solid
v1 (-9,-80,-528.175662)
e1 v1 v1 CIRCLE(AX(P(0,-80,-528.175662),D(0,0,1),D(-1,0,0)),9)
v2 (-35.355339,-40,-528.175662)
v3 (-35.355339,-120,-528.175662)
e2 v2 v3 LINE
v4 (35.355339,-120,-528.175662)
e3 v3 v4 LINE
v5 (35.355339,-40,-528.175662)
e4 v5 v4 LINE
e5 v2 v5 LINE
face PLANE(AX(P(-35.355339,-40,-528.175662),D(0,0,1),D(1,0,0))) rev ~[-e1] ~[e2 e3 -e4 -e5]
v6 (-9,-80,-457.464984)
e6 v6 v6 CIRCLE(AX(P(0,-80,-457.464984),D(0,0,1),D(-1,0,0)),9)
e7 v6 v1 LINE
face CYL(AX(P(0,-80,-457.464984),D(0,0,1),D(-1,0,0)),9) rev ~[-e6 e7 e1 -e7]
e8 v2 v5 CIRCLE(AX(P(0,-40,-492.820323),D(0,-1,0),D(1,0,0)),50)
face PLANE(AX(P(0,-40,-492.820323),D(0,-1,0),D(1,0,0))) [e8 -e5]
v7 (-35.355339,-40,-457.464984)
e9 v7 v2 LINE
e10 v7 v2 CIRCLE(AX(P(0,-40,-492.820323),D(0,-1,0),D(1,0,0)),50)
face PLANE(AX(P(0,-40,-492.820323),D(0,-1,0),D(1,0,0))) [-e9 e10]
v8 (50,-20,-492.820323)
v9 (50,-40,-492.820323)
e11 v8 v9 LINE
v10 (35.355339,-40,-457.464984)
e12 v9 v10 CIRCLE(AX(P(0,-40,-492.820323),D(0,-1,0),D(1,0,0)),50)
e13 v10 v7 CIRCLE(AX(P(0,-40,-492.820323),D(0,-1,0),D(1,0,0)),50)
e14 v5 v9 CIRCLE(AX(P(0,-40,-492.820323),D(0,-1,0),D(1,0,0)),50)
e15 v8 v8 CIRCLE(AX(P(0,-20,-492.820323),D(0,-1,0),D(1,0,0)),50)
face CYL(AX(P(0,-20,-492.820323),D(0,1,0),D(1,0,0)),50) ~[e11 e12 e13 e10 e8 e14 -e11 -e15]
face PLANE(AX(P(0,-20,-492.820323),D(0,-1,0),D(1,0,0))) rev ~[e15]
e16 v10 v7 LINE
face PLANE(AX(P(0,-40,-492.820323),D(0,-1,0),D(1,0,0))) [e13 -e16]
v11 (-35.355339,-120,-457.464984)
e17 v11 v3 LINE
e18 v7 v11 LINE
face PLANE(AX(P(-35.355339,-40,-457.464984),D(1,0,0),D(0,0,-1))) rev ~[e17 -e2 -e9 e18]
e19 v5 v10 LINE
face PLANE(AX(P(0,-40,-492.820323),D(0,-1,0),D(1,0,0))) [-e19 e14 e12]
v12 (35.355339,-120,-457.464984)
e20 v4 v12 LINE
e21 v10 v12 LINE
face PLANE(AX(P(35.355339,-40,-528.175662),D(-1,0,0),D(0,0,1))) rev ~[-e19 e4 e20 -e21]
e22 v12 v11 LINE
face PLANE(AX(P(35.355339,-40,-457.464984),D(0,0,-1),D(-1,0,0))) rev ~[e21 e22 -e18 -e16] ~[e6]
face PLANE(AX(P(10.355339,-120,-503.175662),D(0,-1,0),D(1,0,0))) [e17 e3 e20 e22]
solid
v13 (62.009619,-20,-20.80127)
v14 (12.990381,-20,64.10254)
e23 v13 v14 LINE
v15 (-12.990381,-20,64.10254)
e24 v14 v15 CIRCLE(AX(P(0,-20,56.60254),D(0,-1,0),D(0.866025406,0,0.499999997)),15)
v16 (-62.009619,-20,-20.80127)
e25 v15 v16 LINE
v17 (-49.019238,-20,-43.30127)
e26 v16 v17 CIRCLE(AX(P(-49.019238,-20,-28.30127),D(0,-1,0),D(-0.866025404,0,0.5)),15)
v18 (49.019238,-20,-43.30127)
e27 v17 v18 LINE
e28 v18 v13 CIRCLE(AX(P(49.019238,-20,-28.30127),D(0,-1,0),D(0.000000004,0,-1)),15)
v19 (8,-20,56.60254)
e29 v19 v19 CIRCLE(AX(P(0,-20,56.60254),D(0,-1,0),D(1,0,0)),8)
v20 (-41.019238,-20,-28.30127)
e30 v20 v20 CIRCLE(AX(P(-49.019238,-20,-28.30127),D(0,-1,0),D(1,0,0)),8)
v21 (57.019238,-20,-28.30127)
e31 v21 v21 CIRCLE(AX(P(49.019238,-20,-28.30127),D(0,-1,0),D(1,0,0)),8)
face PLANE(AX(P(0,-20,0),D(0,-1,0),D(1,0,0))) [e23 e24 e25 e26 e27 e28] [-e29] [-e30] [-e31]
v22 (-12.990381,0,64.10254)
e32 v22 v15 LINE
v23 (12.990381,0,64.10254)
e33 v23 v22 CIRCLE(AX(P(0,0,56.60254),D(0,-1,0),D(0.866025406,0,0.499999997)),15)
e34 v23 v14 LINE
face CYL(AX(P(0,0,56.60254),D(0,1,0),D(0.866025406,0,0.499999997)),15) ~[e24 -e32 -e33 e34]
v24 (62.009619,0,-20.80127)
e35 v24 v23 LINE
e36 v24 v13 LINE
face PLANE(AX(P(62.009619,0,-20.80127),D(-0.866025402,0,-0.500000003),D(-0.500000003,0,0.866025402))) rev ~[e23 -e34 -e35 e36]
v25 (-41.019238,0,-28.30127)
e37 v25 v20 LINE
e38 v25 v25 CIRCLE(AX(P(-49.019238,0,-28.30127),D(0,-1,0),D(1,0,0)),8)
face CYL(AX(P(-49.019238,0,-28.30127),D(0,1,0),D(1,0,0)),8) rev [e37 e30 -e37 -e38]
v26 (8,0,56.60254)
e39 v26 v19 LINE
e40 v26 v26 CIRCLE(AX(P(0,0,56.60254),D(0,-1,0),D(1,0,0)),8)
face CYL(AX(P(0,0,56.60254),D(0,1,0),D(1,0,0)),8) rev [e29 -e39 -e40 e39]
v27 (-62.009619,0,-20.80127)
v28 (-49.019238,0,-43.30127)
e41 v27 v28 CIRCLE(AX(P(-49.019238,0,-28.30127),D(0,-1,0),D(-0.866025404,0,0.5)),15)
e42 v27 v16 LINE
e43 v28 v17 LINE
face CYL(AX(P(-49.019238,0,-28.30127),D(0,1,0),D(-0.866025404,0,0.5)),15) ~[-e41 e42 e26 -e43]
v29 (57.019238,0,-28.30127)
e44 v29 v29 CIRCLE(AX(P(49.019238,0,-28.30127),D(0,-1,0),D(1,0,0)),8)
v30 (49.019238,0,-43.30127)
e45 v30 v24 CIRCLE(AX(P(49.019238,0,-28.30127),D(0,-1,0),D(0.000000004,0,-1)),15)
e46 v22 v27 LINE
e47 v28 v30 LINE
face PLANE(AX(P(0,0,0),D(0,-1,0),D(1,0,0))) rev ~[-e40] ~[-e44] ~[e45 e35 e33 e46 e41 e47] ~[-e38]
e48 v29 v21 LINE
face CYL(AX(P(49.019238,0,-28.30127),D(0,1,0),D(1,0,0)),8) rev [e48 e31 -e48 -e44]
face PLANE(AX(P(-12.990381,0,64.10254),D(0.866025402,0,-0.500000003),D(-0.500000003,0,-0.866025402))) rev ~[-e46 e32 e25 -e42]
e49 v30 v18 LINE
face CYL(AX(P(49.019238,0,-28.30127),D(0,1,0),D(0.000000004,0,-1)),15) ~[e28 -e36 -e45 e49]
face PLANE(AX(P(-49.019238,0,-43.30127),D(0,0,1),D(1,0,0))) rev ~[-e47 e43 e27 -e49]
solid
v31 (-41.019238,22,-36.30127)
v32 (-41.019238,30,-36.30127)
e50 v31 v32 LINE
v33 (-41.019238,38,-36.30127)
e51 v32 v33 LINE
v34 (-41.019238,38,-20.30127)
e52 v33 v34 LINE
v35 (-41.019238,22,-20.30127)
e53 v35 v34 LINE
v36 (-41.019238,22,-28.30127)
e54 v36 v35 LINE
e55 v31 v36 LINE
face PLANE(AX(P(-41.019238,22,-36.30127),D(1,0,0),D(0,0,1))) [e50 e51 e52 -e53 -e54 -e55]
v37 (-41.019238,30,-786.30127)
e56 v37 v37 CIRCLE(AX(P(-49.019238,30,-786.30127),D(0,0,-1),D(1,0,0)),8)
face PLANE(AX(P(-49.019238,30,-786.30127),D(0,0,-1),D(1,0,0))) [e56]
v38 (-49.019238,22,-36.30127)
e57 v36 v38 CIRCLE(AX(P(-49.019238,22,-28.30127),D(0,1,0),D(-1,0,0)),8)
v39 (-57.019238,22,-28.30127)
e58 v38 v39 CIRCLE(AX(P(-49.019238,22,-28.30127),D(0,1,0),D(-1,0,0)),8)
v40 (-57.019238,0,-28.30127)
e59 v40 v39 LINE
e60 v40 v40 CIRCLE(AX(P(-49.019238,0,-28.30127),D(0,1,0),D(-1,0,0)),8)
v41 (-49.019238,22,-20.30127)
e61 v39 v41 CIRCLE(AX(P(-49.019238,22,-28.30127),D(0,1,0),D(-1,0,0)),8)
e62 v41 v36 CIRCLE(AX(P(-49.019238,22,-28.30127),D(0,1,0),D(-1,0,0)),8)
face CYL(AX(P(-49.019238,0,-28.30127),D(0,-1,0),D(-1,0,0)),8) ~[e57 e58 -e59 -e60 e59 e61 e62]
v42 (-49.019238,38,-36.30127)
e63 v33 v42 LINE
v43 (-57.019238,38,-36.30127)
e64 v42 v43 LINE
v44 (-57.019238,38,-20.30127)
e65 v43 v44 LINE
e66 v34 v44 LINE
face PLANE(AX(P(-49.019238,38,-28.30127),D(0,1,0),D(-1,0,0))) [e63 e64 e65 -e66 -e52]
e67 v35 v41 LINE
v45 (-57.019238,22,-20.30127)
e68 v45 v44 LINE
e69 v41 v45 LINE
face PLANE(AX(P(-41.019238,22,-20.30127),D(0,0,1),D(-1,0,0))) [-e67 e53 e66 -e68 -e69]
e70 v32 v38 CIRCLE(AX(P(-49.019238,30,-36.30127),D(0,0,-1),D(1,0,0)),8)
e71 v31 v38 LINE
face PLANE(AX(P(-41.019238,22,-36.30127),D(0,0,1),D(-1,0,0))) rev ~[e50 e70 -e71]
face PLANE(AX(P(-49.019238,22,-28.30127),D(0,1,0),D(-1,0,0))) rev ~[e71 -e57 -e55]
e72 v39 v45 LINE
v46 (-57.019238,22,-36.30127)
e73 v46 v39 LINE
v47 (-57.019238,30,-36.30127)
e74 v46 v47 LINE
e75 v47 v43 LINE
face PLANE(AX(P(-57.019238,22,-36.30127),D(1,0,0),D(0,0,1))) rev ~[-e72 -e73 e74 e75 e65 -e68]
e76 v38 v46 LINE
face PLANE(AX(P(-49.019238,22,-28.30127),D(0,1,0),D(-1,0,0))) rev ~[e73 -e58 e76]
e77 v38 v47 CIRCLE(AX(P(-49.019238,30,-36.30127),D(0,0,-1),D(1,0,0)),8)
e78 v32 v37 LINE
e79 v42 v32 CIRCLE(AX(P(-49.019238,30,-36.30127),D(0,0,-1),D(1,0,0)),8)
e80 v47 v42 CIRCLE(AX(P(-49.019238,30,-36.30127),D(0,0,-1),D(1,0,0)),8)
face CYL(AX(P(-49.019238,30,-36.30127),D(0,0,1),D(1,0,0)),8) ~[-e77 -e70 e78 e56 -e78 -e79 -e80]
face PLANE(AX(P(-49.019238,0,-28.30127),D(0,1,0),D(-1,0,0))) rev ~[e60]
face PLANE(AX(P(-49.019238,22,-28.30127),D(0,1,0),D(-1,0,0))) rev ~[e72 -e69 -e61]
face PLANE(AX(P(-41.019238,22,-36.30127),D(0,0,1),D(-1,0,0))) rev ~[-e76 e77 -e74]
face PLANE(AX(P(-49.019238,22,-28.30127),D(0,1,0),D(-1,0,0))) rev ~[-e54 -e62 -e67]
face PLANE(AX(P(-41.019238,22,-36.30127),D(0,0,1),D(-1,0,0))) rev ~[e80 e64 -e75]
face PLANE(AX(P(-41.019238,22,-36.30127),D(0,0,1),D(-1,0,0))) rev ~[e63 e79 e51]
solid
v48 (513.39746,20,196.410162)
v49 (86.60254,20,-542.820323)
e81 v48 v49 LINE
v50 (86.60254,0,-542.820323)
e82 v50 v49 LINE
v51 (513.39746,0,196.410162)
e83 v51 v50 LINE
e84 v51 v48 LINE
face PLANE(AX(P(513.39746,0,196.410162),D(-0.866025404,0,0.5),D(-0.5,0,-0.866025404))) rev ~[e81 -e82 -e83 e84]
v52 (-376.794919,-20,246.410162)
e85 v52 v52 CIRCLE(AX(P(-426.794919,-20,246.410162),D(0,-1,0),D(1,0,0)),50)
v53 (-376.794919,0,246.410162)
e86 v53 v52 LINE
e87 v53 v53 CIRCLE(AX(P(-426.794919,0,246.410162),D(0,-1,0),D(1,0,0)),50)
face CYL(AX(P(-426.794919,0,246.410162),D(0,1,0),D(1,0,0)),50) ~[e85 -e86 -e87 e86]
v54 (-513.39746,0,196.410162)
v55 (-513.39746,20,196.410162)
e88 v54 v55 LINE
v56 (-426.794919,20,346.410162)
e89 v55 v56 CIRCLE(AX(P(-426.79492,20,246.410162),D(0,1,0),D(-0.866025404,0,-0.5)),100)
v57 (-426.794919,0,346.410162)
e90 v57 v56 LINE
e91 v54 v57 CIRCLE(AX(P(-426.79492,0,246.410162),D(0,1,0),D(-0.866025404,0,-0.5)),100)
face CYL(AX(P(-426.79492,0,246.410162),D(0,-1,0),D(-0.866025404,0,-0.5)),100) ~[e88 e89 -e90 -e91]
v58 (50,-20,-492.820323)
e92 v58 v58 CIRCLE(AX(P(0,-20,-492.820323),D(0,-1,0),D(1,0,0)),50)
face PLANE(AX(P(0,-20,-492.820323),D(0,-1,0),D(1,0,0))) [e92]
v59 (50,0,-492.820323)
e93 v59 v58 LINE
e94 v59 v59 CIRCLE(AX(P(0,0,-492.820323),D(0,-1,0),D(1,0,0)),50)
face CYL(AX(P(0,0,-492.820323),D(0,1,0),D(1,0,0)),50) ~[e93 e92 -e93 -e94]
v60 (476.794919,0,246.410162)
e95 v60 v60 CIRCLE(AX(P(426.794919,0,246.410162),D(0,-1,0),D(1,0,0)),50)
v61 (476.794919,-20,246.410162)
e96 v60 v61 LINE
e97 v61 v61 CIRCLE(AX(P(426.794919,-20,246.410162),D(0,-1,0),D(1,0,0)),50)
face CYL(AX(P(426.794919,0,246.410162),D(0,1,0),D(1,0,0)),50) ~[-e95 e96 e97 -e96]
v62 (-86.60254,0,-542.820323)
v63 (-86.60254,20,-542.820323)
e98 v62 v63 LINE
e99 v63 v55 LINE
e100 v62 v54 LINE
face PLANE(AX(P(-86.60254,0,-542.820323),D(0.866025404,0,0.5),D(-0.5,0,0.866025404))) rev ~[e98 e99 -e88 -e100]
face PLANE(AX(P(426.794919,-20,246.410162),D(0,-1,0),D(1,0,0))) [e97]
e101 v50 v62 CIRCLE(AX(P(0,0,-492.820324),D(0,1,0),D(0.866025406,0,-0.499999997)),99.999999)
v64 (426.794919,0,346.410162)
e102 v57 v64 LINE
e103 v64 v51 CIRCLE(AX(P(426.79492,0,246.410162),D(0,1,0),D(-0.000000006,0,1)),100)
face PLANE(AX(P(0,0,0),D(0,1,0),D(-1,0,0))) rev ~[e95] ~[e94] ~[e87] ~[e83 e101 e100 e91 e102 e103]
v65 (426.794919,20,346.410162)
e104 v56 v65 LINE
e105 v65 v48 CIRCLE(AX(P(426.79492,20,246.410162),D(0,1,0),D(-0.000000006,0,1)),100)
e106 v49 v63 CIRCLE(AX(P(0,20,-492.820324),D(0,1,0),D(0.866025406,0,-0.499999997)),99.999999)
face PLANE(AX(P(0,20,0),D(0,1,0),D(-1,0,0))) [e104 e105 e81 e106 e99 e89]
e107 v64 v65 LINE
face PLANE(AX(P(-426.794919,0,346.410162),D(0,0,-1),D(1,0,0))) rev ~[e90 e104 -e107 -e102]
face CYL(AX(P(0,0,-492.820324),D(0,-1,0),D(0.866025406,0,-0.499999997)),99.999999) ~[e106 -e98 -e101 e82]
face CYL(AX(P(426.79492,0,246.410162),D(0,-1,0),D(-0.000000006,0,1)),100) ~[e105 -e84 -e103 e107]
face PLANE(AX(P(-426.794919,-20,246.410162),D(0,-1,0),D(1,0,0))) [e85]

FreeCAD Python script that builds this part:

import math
import FreeCAD as App
import Part
import Sketcher

V = App.Vector
Q = App.Units.Quantity


def add_polygon(sketch, points):
    """Adds a closed chain of lines whose ends are joined by coincident constraints."""
    first, n = sketch.GeometryCount, len(points)
    for a, b in zip(points, points[1:] + points[:1]):
        sketch.addGeometry(Part.LineSegment(App.Vector(*a, 0), App.Vector(*b, 0)), False)
    for i in range(n):
        sketch.addConstraint(Sketcher.Constraint("Coincident", first + i, 2, first + (i + 1) % n, 1))

doc = App.newDocument("Part")
body = doc.addObject("PartDesign::Body", "Body")

sketch1 = body.newObject("Sketcher::SketchObject", "Sketch")
sketch1.AttachmentSupport = (doc.getObject("XZ_Plane"), [""])
sketch1.MapMode = "FlatFace"
sketch1.addGeometry([
    Part.LineSegment(V(-12.990381, 64.10254, 0), V(-62.009619, -20.80127, 0)),
    Part.ArcOfCircle(Part.Circle(V(-49.019238, -28.30127, 0), V(0, 0, 1), 15), math.radians(150), math.radians(270)),
    Part.LineSegment(V(-49.019238, -43.30127, 0), V(49.019238, -43.30127, 0)),
    Part.ArcOfCircle(Part.Circle(V(49.019238, -28.30127, 0), V(0, 0, 1), 15), math.radians(-90), math.radians(30)),
    Part.LineSegment(V(62.009619, -20.80127, 0), V(12.990381, 64.10254, 0)),
    Part.ArcOfCircle(Part.Circle(V(0, 56.60254, 0), V(0, 0, 1), 15), math.radians(30), math.radians(150)),
    Part.Circle(V(-49.019238, -28.30127, 0), V(0, 0, 1), 8),
    Part.Circle(V(49.019238, -28.30127, 0), V(0, 0, 1), 8),
    Part.Circle(V(0, 56.60254, 0), V(0, 0, 1), 8),
], False)
sketch1.addConstraint([
    Sketcher.Constraint("Tangent", 0, 2, 1, 1),
    Sketcher.Constraint("Tangent", 1, 2, 2, 1),
    Sketcher.Constraint("Tangent", 2, 2, 3, 1),
    Sketcher.Constraint("Tangent", 3, 2, 4, 1),
    Sketcher.Constraint("Tangent", 4, 2, 5, 1),
    Sketcher.Constraint("Tangent", 5, 2, 0, 1),
    Sketcher.Constraint("Horizontal", 2),
    Sketcher.Constraint("Coincident", 6, 3, 1, 3),
    Sketcher.Constraint("Coincident", 7, 3, 3, 3),
    Sketcher.Constraint("Coincident", 8, 3, 5, 3),
    Sketcher.Constraint("Equal", 1, 3),
    Sketcher.Constraint("Equal", 3, 5),
    Sketcher.Constraint("Equal", 6, 7),
    Sketcher.Constraint("Equal", 7, 8),
    Sketcher.Constraint("Symmetric", 0, 2, 3, 2, -2),
    Sketcher.Constraint("Diameter", 6, Q("16 mm")),
    Sketcher.Constraint("Radius", 1, Q("15 mm")),
    Sketcher.Constraint("Angle", 0, Q("-120 deg")),
    Sketcher.Constraint("DistanceX", 2, 1, 2, 2, Q("98.038476 mm")),
    Sketcher.Constraint("DistanceY", 1, 3, -1, 1, Q("28.30127 mm")),
])
pad1 = body.newObject("PartDesign::Pad", "Pad")
pad1.Profile = sketch1
pad1.Length = 20
body2 = doc.addObject("PartDesign::Body", "Body001")

sketch2 = body2.newObject("Sketcher::SketchObject", "Sketch001")
sketch2.AttachmentSupport = (doc.getObject("XZ_Plane001"), [""])
sketch2.MapMode = "FlatFace"
sketch2.addGeometry(Part.Circle(V(-49.019238, -28.30127, 0), V(0, 0, 1), 8), False)
sketch2.addConstraint([
    Sketcher.Constraint("Diameter", 0, Q("16 mm")),
    Sketcher.Constraint("DistanceY", 0, 3, -1, 1, Q("28.30127 mm")),
    Sketcher.Constraint("DistanceX", 0, 3, -1, 1, Q("49.019238 mm")),
])
pad2 = body2.newObject("PartDesign::Pad", "Pad001")
pad2.Profile = sketch2
pad2.Length = 22
pad2.Reversed = True

sketch3 = body2.newObject("Sketcher::SketchObject", "Sketch002")
sketch3.AttachmentSupport = (doc.getObject("XZ_Plane001"), [""])
sketch3.MapMode = "FlatFace"
sketch3.AttachmentOffset = App.Placement(V(0, 0, -22), App.Rotation())
add_polygon(sketch3, [(-41.019238, -20.30127), (-41.019238, -36.30127), (-57.019238, -36.30127), (-57.019238, -20.30127)])
sketch3.addConstraint([
    Sketcher.Constraint("Vertical", 0),
    Sketcher.Constraint("Horizontal", 1),
    Sketcher.Constraint("Vertical", 2),
    Sketcher.Constraint("Horizontal", 3),
    Sketcher.Constraint("Equal", 3, 0),
    Sketcher.Constraint("DistanceX", 1, 2, 1, 1, Q("16 mm")),
    Sketcher.Constraint("DistanceY", 0, 2, -1, 1, Q("36.30127 mm")),
    Sketcher.Constraint("DistanceX", 0, 2, -1, 1, Q("41.019238 mm")),
])
pad3 = body2.newObject("PartDesign::Pad", "Pad002")
pad3.Profile = sketch3
pad3.Length = 16
pad3.Reversed = True

sketch4 = body2.newObject("Sketcher::SketchObject", "Sketch003")
sketch4.AttachmentSupport = (doc.getObject("XY_Plane001"), [""])
sketch4.MapMode = "FlatFace"
sketch4.AttachmentOffset = App.Placement(V(0, 0, -36.30127), App.Rotation())
sketch4.addGeometry(Part.Circle(V(-49.019238, 30, 0), V(0, 0, 1), 8), False)
sketch4.addConstraint([
    Sketcher.Constraint("Diameter", 0, Q("16 mm")),
    Sketcher.Constraint("DistanceY", -1, 1, 0, 3, Q("30 mm")),
    Sketcher.Constraint("DistanceX", 0, 3, -1, 1, Q("49.019238 mm")),
])
pad4 = body2.newObject("PartDesign::Pad", "Pad003")
pad4.Profile = sketch4
pad4.Length = 750
pad4.Reversed = True
body3 = doc.addObject("PartDesign::Body", "Body002")

sketch5 = body3.newObject("Sketcher::SketchObject", "Sketch004")
sketch5.AttachmentSupport = (doc.getObject("XZ_Plane002"), [""])
sketch5.MapMode = "FlatFace"
sketch5.addGeometry([
    Part.LineSegment(V(-86.60254, -542.820323, 0), V(-513.39746, 196.410162, 0)),
    Part.ArcOfCircle(Part.Circle(V(-426.79492, 246.410162, 0), V(0, 0, 1), 100), math.radians(90), math.radians(210)),
    Part.LineSegment(V(-426.794919, 346.410162, 0), V(426.794919, 346.410162, 0)),
    Part.ArcOfCircle(Part.Circle(V(426.79492, 246.410162, 0), V(0, 0, 1), 100), math.radians(-30), math.radians(90)),
    Part.LineSegment(V(513.39746, 196.410162, 0), V(86.60254, -542.820323, 0)),
    Part.ArcOfCircle(Part.Circle(V(0, -492.820324, 0), V(0, 0, 1), 99.999999), math.radians(-150), math.radians(-30)),
], False)
sketch5.addConstraint([
    Sketcher.Constraint("Tangent", 0, 2, 1, 2),
    Sketcher.Constraint("Tangent", 1, 1, 2, 1),
    Sketcher.Constraint("Tangent", 2, 2, 3, 2),
    Sketcher.Constraint("Tangent", 3, 1, 4, 1),
    Sketcher.Constraint("Tangent", 4, 2, 5, 2),
    Sketcher.Constraint("Tangent", 5, 1, 0, 1),
    Sketcher.Constraint("Horizontal", 2),
    Sketcher.Constraint("Equal", 1, 3),
    Sketcher.Constraint("Equal", 3, 5),
    Sketcher.Constraint("PointOnObject", 5, 3, -2),
    Sketcher.Constraint("Equal", 0, 4),
    Sketcher.Constraint("Radius", 1, Q("100 mm")),
    Sketcher.Constraint("Angle", 0, Q("120 deg")),
    Sketcher.Constraint("DistanceX", 0, 2, 4, 2, Q("600 mm")),
    Sketcher.Constraint("DistanceY", -1, 1, 1, 1, Q("346.410162 mm")),
])
pad5 = body3.newObject("PartDesign::Pad", "Pad004")
pad5.Profile = sketch5
pad5.Length = 20
pad5.Reversed = True

sketch6 = body3.newObject("Sketcher::SketchObject", "Sketch005")
sketch6.AttachmentSupport = (doc.getObject("XZ_Plane002"), [""])
sketch6.MapMode = "FlatFace"
sketch6.addGeometry([
    Part.Circle(V(0, -492.820323, 0), V(0, 0, 1), 50),
    Part.Circle(V(-426.794919, 246.410162, 0), V(0, 0, 1), 50),
    Part.Circle(V(426.794919, 246.410162, 0), V(0, 0, 1), 50),
], False)
sketch6.addConstraint([
    Sketcher.Constraint("Equal", 0, 1),
    Sketcher.Constraint("Equal", 1, 2),
    Sketcher.Constraint("Symmetric", 1, 3, 2, 3, -2),
    Sketcher.Constraint("PointOnObject", 0, 3, -2),
    Sketcher.Constraint("Diameter", 0, Q("100 mm")),
    Sketcher.Constraint("DistanceX", 1, 3, -1, 1, Q("426.794919 mm")),
    Sketcher.Constraint("DistanceY", 0, 3, -1, 1, Q("492.820323 mm")),
    Sketcher.Constraint("DistanceY", -1, 1, 1, 3, Q("246.410162 mm")),
])
pad6 = body3.newObject("PartDesign::Pad", "Pad005")
pad6.Profile = sketch6
pad6.Length = 20
body4 = doc.addObject("PartDesign::Body", "Body003")

sketch7 = body4.newObject("Sketcher::SketchObject", "Sketch006")
sketch7.AttachmentSupport = (doc.getObject("XZ_Plane003"), [""])
sketch7.MapMode = "FlatFace"
sketch7.AttachmentOffset = App.Placement(V(0, 0, 20), App.Rotation())
sketch7.addGeometry(Part.Circle(V(0, -492.820323, 0), V(0, 0, 1), 50), False)
sketch7.addConstraint([
    Sketcher.Constraint("PointOnObject", 0, 3, -2),
    Sketcher.Constraint("Diameter", 0, Q("100 mm")),
    Sketcher.Constraint("DistanceY", 0, 3, -1, 1, Q("492.820323 mm")),
])
pad7 = body4.newObject("PartDesign::Pad", "Pad006")
pad7.Profile = sketch7
pad7.Length = 20

sketch8 = body4.newObject("Sketcher::SketchObject", "Sketch007")
sketch8.AttachmentSupport = (doc.getObject("XZ_Plane003"), [""])
sketch8.MapMode = "FlatFace"
sketch8.AttachmentOffset = App.Placement(V(0, 0, 40), App.Rotation())
add_polygon(sketch8, [(-35.355339, -528.175662), (35.355339, -528.175662), (35.355339, -457.464984), (-35.355339, -457.464984)])
sketch8.addConstraint([
    Sketcher.Constraint("Horizontal", 0),
    Sketcher.Constraint("Vertical", 1),
    Sketcher.Constraint("Horizontal", 2),
    Sketcher.Constraint("Vertical", 3),
    Sketcher.Constraint("Equal", 2, 1),
    Sketcher.Constraint("DistanceX", 0, 1, 0, 2, Q("70.710678 mm")),
    Sketcher.Constraint("DistanceX", -1, 1, 0, 2, Q("35.355339 mm")),
    Sketcher.Constraint("DistanceY", 0, 2, -1, 1, Q("528.175662 mm")),
])
pad8 = body4.newObject("PartDesign::Pad", "Pad007")
pad8.Profile = sketch8
pad8.Length = 80

sketch9 = body4.newObject("Sketcher::SketchObject", "Sketch008")
sketch9.AttachmentSupport = (doc.getObject("XY_Plane003"), [""])
sketch9.MapMode = "FlatFace"
sketch9.AttachmentOffset = App.Placement(V(0, 0, -457.464984), App.Rotation())
sketch9.addGeometry(Part.Circle(V(0, -80, 0), V(0, 0, 1), 9), False)
sketch9.addConstraint([
    Sketcher.Constraint("PointOnObject", 0, 3, -2),
    Sketcher.Constraint("Diameter", 0, Q("18 mm")),
    Sketcher.Constraint("DistanceY", 0, 3, -1, 1, Q("80 mm")),
])
pocket1 = body4.newObject("PartDesign::Pocket", "Pocket")
pocket1.Profile = sketch9
pocket1.Length = 100

doc.recompute()
